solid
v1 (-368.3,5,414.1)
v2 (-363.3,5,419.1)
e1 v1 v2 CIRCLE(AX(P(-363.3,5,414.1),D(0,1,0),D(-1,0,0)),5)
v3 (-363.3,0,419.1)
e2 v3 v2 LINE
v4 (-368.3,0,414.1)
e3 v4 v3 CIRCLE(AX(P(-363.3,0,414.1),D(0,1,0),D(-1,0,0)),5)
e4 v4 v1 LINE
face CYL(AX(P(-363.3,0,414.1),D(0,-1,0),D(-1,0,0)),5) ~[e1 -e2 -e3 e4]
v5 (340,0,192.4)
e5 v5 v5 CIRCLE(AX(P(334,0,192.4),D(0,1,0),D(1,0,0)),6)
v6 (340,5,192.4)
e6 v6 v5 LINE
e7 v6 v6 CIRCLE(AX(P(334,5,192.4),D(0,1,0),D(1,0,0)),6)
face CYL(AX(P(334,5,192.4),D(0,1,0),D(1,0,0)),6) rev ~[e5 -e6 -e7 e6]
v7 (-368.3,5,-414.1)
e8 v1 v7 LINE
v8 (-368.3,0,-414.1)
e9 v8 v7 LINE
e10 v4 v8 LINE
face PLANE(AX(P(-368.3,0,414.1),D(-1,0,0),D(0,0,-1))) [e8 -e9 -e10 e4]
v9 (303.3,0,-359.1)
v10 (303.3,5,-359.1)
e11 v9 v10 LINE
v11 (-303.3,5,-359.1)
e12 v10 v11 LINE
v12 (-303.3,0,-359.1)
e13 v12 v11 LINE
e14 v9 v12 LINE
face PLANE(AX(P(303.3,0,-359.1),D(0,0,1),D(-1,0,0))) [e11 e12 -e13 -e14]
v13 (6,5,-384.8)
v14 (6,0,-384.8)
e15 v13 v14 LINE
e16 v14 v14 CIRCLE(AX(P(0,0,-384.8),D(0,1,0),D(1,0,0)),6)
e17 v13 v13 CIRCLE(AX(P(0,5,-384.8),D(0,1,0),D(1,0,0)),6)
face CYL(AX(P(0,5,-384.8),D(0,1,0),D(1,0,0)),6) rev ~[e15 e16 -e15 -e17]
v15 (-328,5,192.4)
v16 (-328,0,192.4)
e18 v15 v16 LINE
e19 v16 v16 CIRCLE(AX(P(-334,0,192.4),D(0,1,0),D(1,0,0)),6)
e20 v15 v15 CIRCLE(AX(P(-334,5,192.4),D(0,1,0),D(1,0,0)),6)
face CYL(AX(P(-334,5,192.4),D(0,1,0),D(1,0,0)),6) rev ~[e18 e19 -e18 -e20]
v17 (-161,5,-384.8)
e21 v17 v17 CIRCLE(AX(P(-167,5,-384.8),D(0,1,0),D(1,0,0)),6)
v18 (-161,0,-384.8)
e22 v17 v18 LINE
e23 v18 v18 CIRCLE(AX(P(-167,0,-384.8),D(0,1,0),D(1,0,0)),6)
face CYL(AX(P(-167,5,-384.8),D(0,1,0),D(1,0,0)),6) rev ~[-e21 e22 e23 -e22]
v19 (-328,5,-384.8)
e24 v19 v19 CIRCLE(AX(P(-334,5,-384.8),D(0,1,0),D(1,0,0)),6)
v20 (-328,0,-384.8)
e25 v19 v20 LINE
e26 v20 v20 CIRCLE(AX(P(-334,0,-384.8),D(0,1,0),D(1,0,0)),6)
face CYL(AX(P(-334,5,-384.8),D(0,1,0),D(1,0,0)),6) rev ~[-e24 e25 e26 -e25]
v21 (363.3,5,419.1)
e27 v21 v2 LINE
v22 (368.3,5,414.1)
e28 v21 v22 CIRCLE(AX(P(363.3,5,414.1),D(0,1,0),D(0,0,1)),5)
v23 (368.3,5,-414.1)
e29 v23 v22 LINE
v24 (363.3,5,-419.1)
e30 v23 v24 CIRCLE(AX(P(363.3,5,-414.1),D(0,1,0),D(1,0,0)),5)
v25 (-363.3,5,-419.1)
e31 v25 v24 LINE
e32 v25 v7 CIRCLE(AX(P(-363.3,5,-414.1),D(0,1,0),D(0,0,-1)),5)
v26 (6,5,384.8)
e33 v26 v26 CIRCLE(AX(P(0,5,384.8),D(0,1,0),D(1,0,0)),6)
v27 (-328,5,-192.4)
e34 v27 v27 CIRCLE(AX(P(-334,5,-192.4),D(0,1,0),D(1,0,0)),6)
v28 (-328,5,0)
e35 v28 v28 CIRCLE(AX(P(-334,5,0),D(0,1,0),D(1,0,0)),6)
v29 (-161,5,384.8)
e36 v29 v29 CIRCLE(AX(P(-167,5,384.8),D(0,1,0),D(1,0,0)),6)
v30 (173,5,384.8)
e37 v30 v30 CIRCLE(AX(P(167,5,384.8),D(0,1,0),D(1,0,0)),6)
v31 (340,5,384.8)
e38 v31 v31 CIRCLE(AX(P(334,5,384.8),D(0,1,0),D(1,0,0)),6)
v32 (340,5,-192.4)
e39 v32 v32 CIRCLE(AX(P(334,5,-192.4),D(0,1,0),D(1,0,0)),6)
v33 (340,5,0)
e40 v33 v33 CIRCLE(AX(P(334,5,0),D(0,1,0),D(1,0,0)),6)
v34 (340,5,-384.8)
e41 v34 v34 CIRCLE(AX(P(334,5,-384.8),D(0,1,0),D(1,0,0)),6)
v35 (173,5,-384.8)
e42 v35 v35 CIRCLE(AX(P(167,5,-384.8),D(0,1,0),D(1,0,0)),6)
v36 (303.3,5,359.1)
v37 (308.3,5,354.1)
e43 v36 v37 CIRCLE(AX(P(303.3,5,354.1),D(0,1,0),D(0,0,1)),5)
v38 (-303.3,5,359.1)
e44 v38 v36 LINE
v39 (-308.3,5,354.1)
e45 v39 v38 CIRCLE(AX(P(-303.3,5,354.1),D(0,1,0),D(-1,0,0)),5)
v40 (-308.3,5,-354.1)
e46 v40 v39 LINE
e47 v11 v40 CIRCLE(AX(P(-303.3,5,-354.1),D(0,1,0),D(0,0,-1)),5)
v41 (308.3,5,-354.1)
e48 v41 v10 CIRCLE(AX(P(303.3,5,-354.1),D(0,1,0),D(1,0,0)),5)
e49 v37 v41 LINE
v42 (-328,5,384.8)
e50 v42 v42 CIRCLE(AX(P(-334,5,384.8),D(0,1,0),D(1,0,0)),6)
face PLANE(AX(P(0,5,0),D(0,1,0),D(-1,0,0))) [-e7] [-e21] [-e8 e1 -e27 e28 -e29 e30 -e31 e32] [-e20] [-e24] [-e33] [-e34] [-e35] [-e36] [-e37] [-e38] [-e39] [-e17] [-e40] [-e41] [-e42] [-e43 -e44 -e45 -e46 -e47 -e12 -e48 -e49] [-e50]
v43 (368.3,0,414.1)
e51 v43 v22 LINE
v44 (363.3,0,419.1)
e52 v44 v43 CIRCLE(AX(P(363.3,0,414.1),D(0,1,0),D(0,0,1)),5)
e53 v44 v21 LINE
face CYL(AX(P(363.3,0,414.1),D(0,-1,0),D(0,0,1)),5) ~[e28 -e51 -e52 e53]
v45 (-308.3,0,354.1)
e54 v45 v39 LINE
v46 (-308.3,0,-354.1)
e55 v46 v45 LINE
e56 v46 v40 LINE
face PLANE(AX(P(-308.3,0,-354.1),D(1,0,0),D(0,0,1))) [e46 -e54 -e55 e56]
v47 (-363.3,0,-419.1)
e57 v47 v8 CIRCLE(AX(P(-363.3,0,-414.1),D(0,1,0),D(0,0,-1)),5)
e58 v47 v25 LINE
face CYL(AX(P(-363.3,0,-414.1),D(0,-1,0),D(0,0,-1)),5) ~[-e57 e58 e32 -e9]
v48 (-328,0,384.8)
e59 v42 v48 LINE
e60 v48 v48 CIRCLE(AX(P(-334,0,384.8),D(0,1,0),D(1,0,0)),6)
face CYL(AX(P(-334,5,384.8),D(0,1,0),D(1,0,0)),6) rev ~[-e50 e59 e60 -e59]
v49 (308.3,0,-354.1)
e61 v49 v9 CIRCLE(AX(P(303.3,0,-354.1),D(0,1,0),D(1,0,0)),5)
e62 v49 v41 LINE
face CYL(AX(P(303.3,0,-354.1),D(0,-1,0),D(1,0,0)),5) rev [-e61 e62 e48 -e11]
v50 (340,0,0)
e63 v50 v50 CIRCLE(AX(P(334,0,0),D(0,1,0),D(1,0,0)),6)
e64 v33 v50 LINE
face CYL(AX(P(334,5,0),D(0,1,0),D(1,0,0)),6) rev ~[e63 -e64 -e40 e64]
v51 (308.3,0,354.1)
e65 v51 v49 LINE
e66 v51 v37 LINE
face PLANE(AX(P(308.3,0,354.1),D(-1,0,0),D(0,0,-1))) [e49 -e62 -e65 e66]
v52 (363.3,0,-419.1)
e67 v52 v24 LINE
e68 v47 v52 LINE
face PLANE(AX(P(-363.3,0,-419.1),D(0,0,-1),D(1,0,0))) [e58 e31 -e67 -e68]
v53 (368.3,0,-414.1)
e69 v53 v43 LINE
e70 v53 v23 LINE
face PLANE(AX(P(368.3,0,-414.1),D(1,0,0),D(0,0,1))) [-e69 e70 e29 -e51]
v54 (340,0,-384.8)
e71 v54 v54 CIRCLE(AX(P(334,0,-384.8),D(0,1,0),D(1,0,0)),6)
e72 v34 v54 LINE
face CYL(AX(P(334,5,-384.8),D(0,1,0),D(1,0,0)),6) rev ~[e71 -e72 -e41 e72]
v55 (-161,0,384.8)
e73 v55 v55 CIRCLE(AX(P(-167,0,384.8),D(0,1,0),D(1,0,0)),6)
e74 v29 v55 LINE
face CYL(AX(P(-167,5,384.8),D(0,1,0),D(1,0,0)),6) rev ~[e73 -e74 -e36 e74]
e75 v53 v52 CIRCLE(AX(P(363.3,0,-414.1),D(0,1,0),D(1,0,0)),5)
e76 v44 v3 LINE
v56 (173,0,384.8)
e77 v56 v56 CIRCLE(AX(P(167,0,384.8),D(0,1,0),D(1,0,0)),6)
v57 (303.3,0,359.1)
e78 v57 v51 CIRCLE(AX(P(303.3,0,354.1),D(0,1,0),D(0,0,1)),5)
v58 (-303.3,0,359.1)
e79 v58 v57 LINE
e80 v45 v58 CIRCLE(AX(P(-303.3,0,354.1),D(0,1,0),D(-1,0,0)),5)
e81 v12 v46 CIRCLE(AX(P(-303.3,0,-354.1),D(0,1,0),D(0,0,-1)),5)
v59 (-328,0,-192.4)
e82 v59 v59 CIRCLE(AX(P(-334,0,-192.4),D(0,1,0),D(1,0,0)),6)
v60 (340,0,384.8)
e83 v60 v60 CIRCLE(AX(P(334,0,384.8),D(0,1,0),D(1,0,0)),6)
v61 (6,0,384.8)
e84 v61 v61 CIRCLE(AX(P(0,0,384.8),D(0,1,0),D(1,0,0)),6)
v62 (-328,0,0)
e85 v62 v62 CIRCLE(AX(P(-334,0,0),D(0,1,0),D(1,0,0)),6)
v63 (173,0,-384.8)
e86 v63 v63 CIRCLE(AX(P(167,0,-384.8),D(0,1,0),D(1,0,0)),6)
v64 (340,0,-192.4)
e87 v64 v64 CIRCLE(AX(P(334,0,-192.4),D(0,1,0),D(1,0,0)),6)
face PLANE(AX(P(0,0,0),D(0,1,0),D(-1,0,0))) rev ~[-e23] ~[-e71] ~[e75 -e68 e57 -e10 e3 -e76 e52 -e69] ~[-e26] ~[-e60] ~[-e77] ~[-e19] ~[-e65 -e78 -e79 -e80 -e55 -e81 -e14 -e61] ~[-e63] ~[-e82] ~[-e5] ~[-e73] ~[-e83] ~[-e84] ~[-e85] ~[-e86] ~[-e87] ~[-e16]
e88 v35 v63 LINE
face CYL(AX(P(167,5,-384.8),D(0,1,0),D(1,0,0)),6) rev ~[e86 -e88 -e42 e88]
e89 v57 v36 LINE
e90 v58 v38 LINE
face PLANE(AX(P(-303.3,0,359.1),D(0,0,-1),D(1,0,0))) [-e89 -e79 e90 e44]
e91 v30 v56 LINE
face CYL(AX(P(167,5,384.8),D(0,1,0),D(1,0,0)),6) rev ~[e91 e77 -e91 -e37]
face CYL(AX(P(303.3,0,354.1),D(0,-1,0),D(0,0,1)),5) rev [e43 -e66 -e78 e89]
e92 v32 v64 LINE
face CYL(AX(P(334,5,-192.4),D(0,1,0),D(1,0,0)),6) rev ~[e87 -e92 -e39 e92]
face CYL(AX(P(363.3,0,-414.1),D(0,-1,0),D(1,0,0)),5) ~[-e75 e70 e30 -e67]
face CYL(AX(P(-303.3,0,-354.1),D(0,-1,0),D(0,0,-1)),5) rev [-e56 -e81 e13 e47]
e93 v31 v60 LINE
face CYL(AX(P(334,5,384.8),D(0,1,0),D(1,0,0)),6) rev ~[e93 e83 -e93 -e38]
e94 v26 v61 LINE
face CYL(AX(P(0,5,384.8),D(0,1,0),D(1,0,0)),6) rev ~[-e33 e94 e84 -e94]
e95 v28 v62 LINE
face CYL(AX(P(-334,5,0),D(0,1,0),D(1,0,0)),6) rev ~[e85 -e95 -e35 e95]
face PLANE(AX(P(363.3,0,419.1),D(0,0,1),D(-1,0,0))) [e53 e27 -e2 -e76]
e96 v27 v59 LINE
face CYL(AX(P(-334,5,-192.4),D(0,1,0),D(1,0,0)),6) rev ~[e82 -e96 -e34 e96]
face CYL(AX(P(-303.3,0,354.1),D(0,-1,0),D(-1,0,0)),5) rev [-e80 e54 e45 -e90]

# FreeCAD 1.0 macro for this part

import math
import FreeCAD as App
import Part
import Sketcher

V = App.Vector
Q = App.Units.Quantity

doc = App.newDocument("Part")
body = doc.addObject("PartDesign::Body", "Body")

# Sketch on XZ plane
sketch1 = body.newObject("Sketcher::SketchObject", "Sketch")
sketch1.AttachmentSupport = (doc.getObject("XZ_Plane"), [""])
sketch1.MapMode = "FlatFace"
sketch1.addGeometry([
    Part.LineSegment(V(-363, 419, 0), V(363, 419, 0)),  # 0
    Part.ArcOfCircle(Part.Circle(V(363, 414, 0), V(0, 0, 1), 5), math.radians(0), math.radians(90)),  # 1
    Part.LineSegment(V(368, 414, 0), V(368, -414, 0)),  # 2
    Part.ArcOfCircle(Part.Circle(V(363, -414, 0), V(0, 0, 1), 5), math.radians(-90), math.radians(0)),  # 3
    Part.LineSegment(V(363, -419, 0), V(-363, -419, 0)),  # 4
    Part.ArcOfCircle(Part.Circle(V(-363, -414, 0), V(0, 0, 1), 5), math.radians(180), math.radians(270)),  # 5
    Part.LineSegment(V(-368, -414, 0), V(-368, 414, 0)),  # 6
    Part.ArcOfCircle(Part.Circle(V(-363, 414, 0), V(0, 0, 1), 5), math.radians(90), math.radians(180)),  # 7
    Part.LineSegment(V(303, 359, 0), V(-303, 359, 0)),  # 8
    Part.ArcOfCircle(Part.Circle(V(-303, 354, 0), V(0, 0, 1), 5), math.radians(90), math.radians(180)),  # 9
    Part.LineSegment(V(-308, 354, 0), V(-308, -354, 0)),  # 10
    Part.ArcOfCircle(Part.Circle(V(-303, -354, 0), V(0, 0, 1), 5), math.radians(180), math.radians(270)),  # 11
    Part.LineSegment(V(-303, -359, 0), V(303, -359, 0)),  # 12
    Part.ArcOfCircle(Part.Circle(V(303, -354, 0), V(0, 0, 1), 5), math.radians(-90), math.radians(0)),  # 13
    Part.LineSegment(V(308, -354, 0), V(308, 354, 0)),  # 14
    Part.ArcOfCircle(Part.Circle(V(303, 354, 0), V(0, 0, 1), 5), math.radians(0), math.radians(90)),  # 15
], False)
sketch1.addConstraint([
    Sketcher.Constraint("Tangent", 0, 2, 1, 2),
    Sketcher.Constraint("Tangent", 1, 1, 2, 1),
    Sketcher.Constraint("Tangent", 2, 2, 3, 2),
    Sketcher.Constraint("Tangent", 3, 1, 4, 1),
    Sketcher.Constraint("Tangent", 4, 2, 5, 2),
    Sketcher.Constraint("Tangent", 5, 1, 6, 1),
    Sketcher.Constraint("Tangent", 6, 2, 7, 2),
    Sketcher.Constraint("Tangent", 7, 1, 0, 1),
    Sketcher.Constraint("Tangent", 8, 2, 9, 1),
    Sketcher.Constraint("Tangent", 9, 2, 10, 1),
    Sketcher.Constraint("Tangent", 10, 2, 11, 1),
    Sketcher.Constraint("Tangent", 11, 2, 12, 1),
    Sketcher.Constraint("Tangent", 12, 2, 13, 1),
    Sketcher.Constraint("Tangent", 13, 2, 14, 1),
    Sketcher.Constraint("Tangent", 14, 2, 15, 1),
    Sketcher.Constraint("Tangent", 15, 2, 8, 1),
    Sketcher.Constraint("Horizontal", 0),
    Sketcher.Constraint("Vertical", 2),
    Sketcher.Constraint("Horizontal", 4),
    Sketcher.Constraint("Vertical", 6),
    Sketcher.Constraint("Horizontal", 8),
    Sketcher.Constraint("Vertical", 10),
    Sketcher.Constraint("Horizontal", 12),
    Sketcher.Constraint("Vertical", 14),
    Sketcher.Constraint("Equal", 1, 3),
    Sketcher.Constraint("Equal", 3, 5),
    Sketcher.Constraint("Equal", 5, 7),
    Sketcher.Constraint("Equal", 7, 9),
    Sketcher.Constraint("Equal", 9, 11),
    Sketcher.Constraint("Equal", 11, 13),
    Sketcher.Constraint("Equal", 13, 15),
    Sketcher.Constraint("Symmetric", 1, 3, 5, 3, -1, 1),
    Sketcher.Constraint("Symmetric", 9, 3, 13, 3, -1, 1),
    Sketcher.Constraint("Radius", 1, Q("5 mm")),
    Sketcher.Constraint("DistanceX", 7, 3, 9, 3, Q("60 mm")),
    Sketcher.Constraint("DistanceY", 9, 3, 7, 3, Q("60 mm")),
    Sketcher.Constraint("DistanceX", 0, 1, 0, 2, Q("726.6 mm")),
    Sketcher.Constraint("DistanceY", 2, 2, 2, 1, Q("828.2 mm")),
])
pad1 = body.newObject("PartDesign::Pad", "Pad")
pad1.Profile = sketch1
pad1.Length = 5
pad1.Reversed = True

# Sketch on XZ plane
sketch2 = body.newObject("Sketcher::SketchObject", "Sketch001")
sketch2.AttachmentSupport = (doc.getObject("XZ_Plane"), [""])
sketch2.MapMode = "FlatFace"
sketch2.AttachmentOffset = App.Placement(V(0, 0, -5), App.Rotation())
sketch2.addGeometry([
    Part.Circle(V(-334, -385, 0), V(0, 0, 1), 6),  # 0
    Part.Circle(V(-167, -385, 0), V(0, 0, 1), 6),  # 1
    Part.Circle(V(0, -385, 0), V(0, 0, 1), 6),  # 2
    Part.Circle(V(-334, 192, 0), V(0, 0, 1), 6),  # 3
    Part.Circle(V(-334, 385, 0), V(0, 0, 1), 6),  # 4
    Part.Circle(V(-334, 0, 0), V(0, 0, 1), 6),  # 5
    Part.Circle(V(-334, -192, 0), V(0, 0, 1), 6),  # 6
    Part.Circle(V(-167, 385, 0), V(0, 0, 1), 6),  # 7
    Part.Circle(V(0, 385, 0), V(0, 0, 1), 6),  # 8
    Part.Circle(V(167, 385, 0), V(0, 0, 1), 6),  # 9
    Part.Circle(V(334, 385, 0), V(0, 0, 1), 6),  # 10
    Part.Circle(V(334, 192, 0), V(0, 0, 1), 6),  # 11
    Part.Circle(V(334, 0, 0), V(0, 0, 1), 6),  # 12
    Part.Circle(V(334, -192, 0), V(0, 0, 1), 6),  # 13
    Part.Circle(V(334, -385, 0), V(0, 0, 1), 6),  # 14
    Part.Circle(V(167, -385, 0), V(0, 0, 1), 6),  # 15
], False)
sketch2.addConstraint([
    Sketcher.Constraint("Equal", 0, 1),
    Sketcher.Constraint("Equal", 1, 2),
    Sketcher.Constraint("Equal", 2, 3),
    Sketcher.Constraint("Equal", 3, 4),
    Sketcher.Constraint("Equal", 4, 5),
    Sketcher.Constraint("Equal", 5, 6),
    Sketcher.Constraint("Equal", 6, 7),
    Sketcher.Constraint("Equal", 7, 8),
    Sketcher.Constraint("Equal", 8, 9),
    Sketcher.Constraint("Equal", 9, 10),
    Sketcher.Constraint("Equal", 10, 11),
    Sketcher.Constraint("Equal", 11, 12),
    Sketcher.Constraint("Equal", 12, 13),
    Sketcher.Constraint("Equal", 13, 14),
    Sketcher.Constraint("Equal", 14, 15),
    Sketcher.Constraint("Symmetric", 2, 3, 8, 3, -1, 1),
    Sketcher.Constraint("Symmetric", 1, 3, 9, 3, -1, 1),
    Sketcher.Constraint("Symmetric", 0, 3, 10, 3, -1, 1),
    Sketcher.Constraint("Symmetric", 6, 3, 11, 3, -1, 1),
    Sketcher.Constraint("Symmetric", 5, 3, 12, 3, -1, 1),
    Sketcher.Constraint("Symmetric", 3, 3, 13, 3, -1, 1),
    Sketcher.Constraint("Symmetric", 4, 3, 14, 3, -1, 1),
    Sketcher.Constraint("Symmetric", 7, 3, 15, 3, -1, 1),
    Sketcher.Constraint("Symmetric", 7, 3, 9, 3, -2),
    Sketcher.Constraint("Symmetric", 4, 3, 10, 3, -2),
    Sketcher.Constraint("Symmetric", 3, 3, 11, 3, -2),
    Sketcher.Constraint("PointOnObject", 2, 3, -2),
    Sketcher.Constraint("PointOnObject", 5, 3, -1),
    Sketcher.Constraint("Horizontal", 0, 3, 1, 3),
    Sketcher.Constraint("Horizontal", 1, 3, 2, 3),
    Sketcher.Constraint("Vertical", 0, 3, 3, 3),
    Sketcher.Constraint("Vertical", 4, 3, 5, 3),
    Sketcher.Constraint("Diameter", 0, Q("12 mm")),
    Sketcher.Constraint("DistanceX", 0, 3, -1, 1, Q("334 mm")),
    Sketcher.Constraint("DistanceX", 1, 3, -1, 1, Q("167 mm")),
    Sketcher.Constraint("DistanceY", 0, 3, -1, 1, Q("384.8 mm")),
    Sketcher.Constraint("DistanceY", -1, 1, 3, 3, Q("192.4 mm")),
])
pocket1 = body.newObject("PartDesign::Pocket", "Pocket")
pocket1.Profile = sketch2
pocket1.Length = 5
pocket1.Reversed = True

doc.recompute()
